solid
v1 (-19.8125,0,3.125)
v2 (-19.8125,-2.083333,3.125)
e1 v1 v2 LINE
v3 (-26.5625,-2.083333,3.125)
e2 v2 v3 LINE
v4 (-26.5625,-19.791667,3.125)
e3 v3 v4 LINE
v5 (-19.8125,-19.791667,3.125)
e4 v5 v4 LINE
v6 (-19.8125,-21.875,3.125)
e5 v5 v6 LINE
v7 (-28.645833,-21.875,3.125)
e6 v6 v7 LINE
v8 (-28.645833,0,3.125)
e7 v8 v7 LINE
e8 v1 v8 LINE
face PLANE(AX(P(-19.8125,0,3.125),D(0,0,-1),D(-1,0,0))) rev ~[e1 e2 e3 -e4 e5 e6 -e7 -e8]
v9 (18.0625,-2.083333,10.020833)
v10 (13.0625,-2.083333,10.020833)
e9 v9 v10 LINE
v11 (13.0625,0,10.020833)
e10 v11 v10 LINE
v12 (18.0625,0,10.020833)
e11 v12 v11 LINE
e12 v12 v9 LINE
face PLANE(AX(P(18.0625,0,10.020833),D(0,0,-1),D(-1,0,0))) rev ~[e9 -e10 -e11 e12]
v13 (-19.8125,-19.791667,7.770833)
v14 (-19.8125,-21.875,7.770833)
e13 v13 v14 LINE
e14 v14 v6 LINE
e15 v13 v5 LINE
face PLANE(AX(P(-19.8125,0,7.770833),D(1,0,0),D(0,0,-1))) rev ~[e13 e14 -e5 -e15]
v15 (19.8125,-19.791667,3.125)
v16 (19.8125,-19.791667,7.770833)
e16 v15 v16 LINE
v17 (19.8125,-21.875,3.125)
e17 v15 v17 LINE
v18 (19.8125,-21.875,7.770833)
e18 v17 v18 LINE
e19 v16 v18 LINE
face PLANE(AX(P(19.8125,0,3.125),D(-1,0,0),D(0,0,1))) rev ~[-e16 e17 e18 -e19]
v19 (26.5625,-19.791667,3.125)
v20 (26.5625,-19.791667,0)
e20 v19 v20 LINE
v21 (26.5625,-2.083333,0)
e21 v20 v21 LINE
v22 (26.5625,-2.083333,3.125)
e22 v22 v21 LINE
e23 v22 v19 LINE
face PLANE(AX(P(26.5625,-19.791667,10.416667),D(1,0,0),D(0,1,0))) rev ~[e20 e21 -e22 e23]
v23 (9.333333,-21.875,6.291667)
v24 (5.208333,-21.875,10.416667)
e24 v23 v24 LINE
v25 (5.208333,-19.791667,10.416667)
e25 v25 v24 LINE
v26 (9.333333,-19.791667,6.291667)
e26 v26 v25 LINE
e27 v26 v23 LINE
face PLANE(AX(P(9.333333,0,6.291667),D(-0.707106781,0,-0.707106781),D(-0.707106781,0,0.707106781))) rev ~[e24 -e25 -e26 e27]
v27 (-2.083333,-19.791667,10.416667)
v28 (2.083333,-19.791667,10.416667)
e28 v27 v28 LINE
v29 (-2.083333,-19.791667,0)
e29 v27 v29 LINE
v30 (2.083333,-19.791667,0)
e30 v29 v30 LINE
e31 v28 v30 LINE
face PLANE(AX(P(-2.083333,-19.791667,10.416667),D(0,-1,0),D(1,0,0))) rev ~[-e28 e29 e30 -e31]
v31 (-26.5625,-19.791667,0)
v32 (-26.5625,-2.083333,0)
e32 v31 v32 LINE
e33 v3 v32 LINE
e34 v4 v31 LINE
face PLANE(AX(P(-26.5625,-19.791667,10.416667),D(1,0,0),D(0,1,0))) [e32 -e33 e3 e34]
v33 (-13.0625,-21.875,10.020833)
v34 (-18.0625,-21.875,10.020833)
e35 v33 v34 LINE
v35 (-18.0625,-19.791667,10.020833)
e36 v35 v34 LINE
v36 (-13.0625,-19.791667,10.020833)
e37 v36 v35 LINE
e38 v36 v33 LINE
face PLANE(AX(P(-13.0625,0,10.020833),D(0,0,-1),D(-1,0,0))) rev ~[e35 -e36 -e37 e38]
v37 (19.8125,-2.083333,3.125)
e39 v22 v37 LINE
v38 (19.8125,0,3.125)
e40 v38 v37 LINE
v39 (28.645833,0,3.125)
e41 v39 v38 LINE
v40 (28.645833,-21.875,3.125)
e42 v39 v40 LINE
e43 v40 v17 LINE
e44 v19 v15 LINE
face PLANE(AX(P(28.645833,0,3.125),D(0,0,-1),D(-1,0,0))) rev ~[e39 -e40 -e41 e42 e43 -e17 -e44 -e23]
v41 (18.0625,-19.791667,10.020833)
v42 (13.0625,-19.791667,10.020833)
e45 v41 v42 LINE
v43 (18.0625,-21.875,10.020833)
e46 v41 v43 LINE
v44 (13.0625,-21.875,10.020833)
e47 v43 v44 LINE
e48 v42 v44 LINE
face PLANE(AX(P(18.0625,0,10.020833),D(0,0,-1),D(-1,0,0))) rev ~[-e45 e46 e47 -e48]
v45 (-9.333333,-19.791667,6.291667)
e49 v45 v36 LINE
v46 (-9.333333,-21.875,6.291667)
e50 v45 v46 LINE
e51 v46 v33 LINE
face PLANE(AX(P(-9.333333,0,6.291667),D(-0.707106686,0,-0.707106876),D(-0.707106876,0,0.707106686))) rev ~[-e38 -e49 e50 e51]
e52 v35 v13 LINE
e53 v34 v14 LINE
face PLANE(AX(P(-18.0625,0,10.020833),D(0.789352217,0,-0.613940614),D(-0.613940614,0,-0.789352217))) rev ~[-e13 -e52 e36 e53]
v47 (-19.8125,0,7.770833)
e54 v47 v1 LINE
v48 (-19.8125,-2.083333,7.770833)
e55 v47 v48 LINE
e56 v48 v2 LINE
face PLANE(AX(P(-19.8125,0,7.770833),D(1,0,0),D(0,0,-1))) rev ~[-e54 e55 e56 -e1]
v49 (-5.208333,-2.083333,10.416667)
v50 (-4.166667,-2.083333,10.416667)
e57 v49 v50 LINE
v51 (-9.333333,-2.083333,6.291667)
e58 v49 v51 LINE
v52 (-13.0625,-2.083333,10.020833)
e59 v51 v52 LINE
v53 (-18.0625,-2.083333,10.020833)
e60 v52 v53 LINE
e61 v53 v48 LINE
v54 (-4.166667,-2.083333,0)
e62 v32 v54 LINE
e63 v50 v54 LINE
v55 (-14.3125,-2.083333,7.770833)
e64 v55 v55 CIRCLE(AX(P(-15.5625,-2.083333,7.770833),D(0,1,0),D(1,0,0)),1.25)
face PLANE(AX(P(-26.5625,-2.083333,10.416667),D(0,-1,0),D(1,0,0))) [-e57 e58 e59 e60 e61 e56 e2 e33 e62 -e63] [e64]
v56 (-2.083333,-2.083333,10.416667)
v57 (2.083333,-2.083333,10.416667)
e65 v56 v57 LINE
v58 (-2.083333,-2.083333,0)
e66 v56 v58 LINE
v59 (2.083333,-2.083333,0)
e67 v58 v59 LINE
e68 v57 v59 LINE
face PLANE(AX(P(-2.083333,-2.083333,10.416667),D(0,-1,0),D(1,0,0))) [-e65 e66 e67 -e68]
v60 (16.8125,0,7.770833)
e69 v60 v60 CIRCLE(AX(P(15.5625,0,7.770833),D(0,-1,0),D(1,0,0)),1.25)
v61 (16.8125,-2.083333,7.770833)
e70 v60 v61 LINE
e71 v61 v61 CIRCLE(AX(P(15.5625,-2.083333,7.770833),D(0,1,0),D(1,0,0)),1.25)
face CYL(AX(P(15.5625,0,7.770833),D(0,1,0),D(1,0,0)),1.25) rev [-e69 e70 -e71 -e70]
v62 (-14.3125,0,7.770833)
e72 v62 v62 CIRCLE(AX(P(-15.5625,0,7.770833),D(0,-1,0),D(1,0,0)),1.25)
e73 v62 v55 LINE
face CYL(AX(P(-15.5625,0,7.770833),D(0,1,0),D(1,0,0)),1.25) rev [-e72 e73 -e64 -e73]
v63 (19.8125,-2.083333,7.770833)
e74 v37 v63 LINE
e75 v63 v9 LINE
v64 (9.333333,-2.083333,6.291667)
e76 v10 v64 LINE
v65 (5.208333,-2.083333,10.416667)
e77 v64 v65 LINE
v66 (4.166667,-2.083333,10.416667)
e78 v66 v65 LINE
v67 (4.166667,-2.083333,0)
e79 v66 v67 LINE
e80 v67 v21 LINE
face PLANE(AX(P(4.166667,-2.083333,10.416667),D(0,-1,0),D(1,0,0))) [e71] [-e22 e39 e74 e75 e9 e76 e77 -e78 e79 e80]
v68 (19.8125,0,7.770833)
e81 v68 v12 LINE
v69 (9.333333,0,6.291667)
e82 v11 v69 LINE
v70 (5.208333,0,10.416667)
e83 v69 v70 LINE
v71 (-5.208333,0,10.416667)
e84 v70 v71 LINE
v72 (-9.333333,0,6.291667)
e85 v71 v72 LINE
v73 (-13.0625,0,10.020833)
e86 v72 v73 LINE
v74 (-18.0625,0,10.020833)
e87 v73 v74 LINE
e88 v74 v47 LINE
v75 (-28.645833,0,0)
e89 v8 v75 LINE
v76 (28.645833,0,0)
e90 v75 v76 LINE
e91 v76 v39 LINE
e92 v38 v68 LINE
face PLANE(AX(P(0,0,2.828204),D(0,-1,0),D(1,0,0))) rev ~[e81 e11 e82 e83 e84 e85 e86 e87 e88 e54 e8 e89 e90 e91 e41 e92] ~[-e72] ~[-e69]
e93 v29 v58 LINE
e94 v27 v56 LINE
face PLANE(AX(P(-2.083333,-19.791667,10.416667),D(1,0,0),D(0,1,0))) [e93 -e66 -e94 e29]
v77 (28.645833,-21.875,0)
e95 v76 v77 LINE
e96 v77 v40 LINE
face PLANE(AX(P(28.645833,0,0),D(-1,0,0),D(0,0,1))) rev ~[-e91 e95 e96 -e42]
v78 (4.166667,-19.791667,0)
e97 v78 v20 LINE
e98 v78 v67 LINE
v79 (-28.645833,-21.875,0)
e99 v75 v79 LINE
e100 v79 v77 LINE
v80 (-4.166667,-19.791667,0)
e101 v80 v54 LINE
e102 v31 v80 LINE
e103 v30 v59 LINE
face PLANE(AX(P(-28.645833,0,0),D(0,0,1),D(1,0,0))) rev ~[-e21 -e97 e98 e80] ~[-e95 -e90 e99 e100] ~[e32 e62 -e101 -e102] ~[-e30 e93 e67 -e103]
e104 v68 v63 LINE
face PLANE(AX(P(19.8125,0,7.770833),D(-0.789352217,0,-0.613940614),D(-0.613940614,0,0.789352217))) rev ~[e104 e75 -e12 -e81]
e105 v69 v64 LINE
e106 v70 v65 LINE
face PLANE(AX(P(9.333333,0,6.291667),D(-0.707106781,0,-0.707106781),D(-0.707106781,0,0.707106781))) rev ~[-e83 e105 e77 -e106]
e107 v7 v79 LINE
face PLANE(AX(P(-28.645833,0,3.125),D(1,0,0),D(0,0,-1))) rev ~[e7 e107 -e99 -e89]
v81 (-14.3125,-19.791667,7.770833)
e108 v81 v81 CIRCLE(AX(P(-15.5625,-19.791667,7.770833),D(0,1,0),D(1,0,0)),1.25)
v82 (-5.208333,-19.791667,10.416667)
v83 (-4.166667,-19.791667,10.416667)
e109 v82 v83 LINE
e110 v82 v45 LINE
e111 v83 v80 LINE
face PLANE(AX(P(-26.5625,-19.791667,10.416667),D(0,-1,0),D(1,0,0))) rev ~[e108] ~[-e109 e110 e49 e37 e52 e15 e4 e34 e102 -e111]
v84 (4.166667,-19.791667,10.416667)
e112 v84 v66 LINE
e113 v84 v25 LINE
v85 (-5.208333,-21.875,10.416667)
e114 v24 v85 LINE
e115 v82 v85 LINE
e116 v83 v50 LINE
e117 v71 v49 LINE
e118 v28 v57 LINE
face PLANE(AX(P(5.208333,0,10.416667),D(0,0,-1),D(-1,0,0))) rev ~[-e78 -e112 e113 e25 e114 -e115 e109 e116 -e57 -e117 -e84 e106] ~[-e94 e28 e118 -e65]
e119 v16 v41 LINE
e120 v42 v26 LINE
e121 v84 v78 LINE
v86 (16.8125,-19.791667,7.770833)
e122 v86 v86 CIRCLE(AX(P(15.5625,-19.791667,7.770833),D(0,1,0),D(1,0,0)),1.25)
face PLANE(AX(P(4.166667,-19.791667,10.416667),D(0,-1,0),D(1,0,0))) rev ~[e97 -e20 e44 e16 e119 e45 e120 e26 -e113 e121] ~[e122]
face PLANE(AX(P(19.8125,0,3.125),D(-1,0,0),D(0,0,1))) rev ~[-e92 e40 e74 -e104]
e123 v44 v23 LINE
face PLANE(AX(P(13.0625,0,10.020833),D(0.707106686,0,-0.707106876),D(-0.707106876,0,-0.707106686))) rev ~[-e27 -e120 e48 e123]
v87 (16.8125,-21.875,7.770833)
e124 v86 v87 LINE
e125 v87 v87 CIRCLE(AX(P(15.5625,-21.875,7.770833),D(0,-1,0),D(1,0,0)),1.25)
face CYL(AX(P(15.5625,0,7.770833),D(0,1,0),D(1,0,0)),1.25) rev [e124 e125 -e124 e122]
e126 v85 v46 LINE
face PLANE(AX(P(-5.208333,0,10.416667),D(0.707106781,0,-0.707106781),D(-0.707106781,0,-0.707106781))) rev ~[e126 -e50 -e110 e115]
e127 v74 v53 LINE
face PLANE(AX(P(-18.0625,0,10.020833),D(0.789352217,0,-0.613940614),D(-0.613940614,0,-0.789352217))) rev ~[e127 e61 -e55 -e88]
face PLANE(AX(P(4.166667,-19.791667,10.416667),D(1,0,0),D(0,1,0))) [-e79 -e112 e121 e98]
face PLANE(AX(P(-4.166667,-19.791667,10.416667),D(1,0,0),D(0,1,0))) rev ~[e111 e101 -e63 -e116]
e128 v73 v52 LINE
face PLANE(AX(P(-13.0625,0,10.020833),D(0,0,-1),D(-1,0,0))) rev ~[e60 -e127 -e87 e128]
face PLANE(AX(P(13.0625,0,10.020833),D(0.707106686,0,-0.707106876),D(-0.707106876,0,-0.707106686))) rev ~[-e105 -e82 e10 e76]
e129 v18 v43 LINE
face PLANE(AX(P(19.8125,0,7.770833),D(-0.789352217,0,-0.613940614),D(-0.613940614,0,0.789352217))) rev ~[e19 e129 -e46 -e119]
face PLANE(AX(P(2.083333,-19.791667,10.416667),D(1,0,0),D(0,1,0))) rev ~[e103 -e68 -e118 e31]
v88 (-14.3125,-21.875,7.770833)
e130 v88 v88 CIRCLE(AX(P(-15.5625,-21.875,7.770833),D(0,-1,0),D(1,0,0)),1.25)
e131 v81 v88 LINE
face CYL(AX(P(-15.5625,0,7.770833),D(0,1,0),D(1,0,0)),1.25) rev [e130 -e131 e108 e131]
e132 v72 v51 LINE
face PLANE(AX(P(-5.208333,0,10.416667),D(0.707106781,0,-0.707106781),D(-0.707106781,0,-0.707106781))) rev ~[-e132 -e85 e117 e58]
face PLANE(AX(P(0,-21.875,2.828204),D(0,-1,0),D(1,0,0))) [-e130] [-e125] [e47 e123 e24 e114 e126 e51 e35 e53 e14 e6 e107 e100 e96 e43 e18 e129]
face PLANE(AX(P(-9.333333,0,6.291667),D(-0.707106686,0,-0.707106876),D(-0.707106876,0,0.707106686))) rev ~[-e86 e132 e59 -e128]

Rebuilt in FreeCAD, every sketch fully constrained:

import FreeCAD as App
import Part
import Sketcher

V = App.Vector

doc = App.newDocument("Part")
body = doc.addObject("PartDesign::Body", "Body")

sketch1 = body.newObject("Sketcher::SketchObject", "Sketch")
sketch1.AttachmentSupport = (doc.getObject("XZ_Plane"), [""])
sketch1.MapMode = "FlatFace"
sketch1.addGeometry([
    Part.LineSegment(V(-28.6, 0, 0), V(28.6, 0, 0)),
    Part.LineSegment(V(28.6, 0, 0), V(28.6, 3.1, 0)),
    Part.LineSegment(V(28.6, 3.1, 0), V(19.8, 3.1, 0)),
    Part.LineSegment(V(19.8, 3.1, 0), V(19.8, 7.8, 0)),
    Part.LineSegment(V(19.8, 7.8, 0), V(18.1, 10, 0)),
    Part.LineSegment(V(18.1, 10, 0), V(13.1, 10, 0)),
    Part.LineSegment(V(13.1, 10, 0), V(9.3, 6.3, 0)),
    Part.LineSegment(V(9.3, 6.3, 0), V(5.2, 10.4, 0)),
    Part.LineSegment(V(5.2, 10.4, 0), V(-5.2, 10.4, 0)),
    Part.LineSegment(V(-5.2, 10.4, 0), V(-9.3, 6.3, 0)),
    Part.LineSegment(V(-9.3, 6.3, 0), V(-13.1, 10, 0)),
    Part.LineSegment(V(-13.1, 10, 0), V(-18.1, 10, 0)),
    Part.LineSegment(V(-18.1, 10, 0), V(-19.8, 7.8, 0)),
    Part.LineSegment(V(-19.8, 7.8, 0), V(-19.8, 3.1, 0)),
    Part.LineSegment(V(-19.8, 3.1, 0), V(-28.6, 3.1, 0)),
    Part.LineSegment(V(-28.6, 3.1, 0), V(-28.6, 0, 0)),
    Part.Circle(V(-15.6, 7.8, 0), V(0, 0, 1), 1.2),
    Part.Circle(V(15.6, 7.8, 0), V(0, 0, 1), 1.2),
], False)
sketch1.addConstraint([
    Sketcher.Constraint("Coincident", 0, 2, 1, 1),
    Sketcher.Constraint("Coincident", 1, 2, 2, 1),
    Sketcher.Constraint("Coincident", 2, 2, 3, 1),
    Sketcher.Constraint("Coincident", 3, 2, 4, 1),
    Sketcher.Constraint("Coincident", 4, 2, 5, 1),
    Sketcher.Constraint("Coincident", 5, 2, 6, 1),
    Sketcher.Constraint("Coincident", 6, 2, 7, 1),
    Sketcher.Constraint("Coincident", 7, 2, 8, 1),
    Sketcher.Constraint("Coincident", 8, 2, 9, 1),
    Sketcher.Constraint("Coincident", 9, 2, 10, 1),
    Sketcher.Constraint("Coincident", 10, 2, 11, 1),
    Sketcher.Constraint("Coincident", 11, 2, 12, 1),
    Sketcher.Constraint("Coincident", 12, 2, 13, 1),
    Sketcher.Constraint("Coincident", 13, 2, 14, 1),
    Sketcher.Constraint("Coincident", 14, 2, 15, 1),
    Sketcher.Constraint("Coincident", 15, 2, 0, 1),
    Sketcher.Constraint("Horizontal", 0),
    Sketcher.Constraint("Vertical", 1),
    Sketcher.Constraint("Horizontal", 2),
    Sketcher.Constraint("Vertical", 3),
    Sketcher.Constraint("Horizontal", 5),
    Sketcher.Constraint("Horizontal", 8),
    Sketcher.Constraint("Horizontal", 11),
    Sketcher.Constraint("Vertical", 13),
    Sketcher.Constraint("Horizontal", 14),
    Sketcher.Constraint("Vertical", 15),
    Sketcher.Constraint("Equal", 16, 17),
    Sketcher.Constraint("Symmetric", 0, 2, 15, 2, -1, 1),
    Sketcher.Constraint("Symmetric", 16, 3, 17, 3, -2),
    Sketcher.Constraint("Symmetric", 6, 2, 9, 2, -2),
    Sketcher.Constraint("Symmetric", 5, 2, 10, 2, -2),
    Sketcher.Constraint("Symmetric", 3, 2, 12, 2, -2),
    Sketcher.Constraint("Perpendicular", 6, 7),
    Sketcher.Constraint("Perpendicular", 7, 9),
    Sketcher.Constraint("Perpendicular", 9, 10),
    Sketcher.Constraint("Horizontal", 17, 3, 3, 2),
    Sketcher.Constraint("Horizontal", 2, 2, 13, 2),
    Sketcher.Constraint("Equal", 5, 11),
    Sketcher.Constraint("Diameter", 16, 2.5),
    Sketcher.Constraint("DistanceX", 5, 2, 5, 1, 5.0),
    Sketcher.Constraint("DistanceX", 17, 3, 4, 2, 2.5),
    Sketcher.Constraint("DistanceY", 1, 1, 1, 2, 3.125),
    Sketcher.Constraint("DistanceX", 17, 3, 2, 2, 4.25),
    Sketcher.Constraint("DistanceY", 3, 2, 4, 2, 2.25),
    Sketcher.Constraint("DistanceX", 16, 3, 17, 3, 31.125),
    Sketcher.Constraint("DistanceX", 7, 2, 6, 2, 4.125),
    Sketcher.Constraint("DistanceX", 0, 1, 0, 2, 57.291666),
    Sketcher.Constraint("DistanceX", 8, 2, 8, 1, 10.416666),
    Sketcher.Constraint("DistanceY", 3, 1, 3, 2, 4.645833),
])
pad1 = body.newObject("PartDesign::Pad", "Pad")
pad1.Profile = sketch1
pad1.Length = 21.875

sketch2 = body.newObject("Sketcher::SketchObject", "Sketch001")
sketch2.AttachmentSupport = (doc.getObject("XY_Plane"), [""])
sketch2.MapMode = "FlatFace"
sketch2.AttachmentOffset = App.Placement(V(0, 0, 10.416667), App.Rotation())
sketch2.addGeometry([
    Part.LineSegment(V(-26.6, -2.1, 0), V(-26.6, -19.8, 0)),
    Part.LineSegment(V(-26.6, -19.8, 0), V(-4.2, -19.8, 0)),
    Part.LineSegment(V(-4.2, -19.8, 0), V(-4.2, -2.1, 0)),
    Part.LineSegment(V(-4.2, -2.1, 0), V(-26.6, -2.1, 0)),
    Part.LineSegment(V(4.2, -2.1, 0), V(4.2, -19.8, 0)),
    Part.LineSegment(V(4.2, -19.8, 0), V(26.6, -19.8, 0)),
    Part.LineSegment(V(26.6, -19.8, 0), V(26.6, -2.1, 0)),
    Part.LineSegment(V(26.6, -2.1, 0), V(4.2, -2.1, 0)),
    Part.LineSegment(V(-2.1, -2.1, 0), V(-2.1, -19.8, 0)),
    Part.LineSegment(V(-2.1, -19.8, 0), V(2.1, -19.8, 0)),
    Part.LineSegment(V(2.1, -19.8, 0), V(2.1, -2.1, 0)),
    Part.LineSegment(V(2.1, -2.1, 0), V(-2.1, -2.1, 0)),
], False)
sketch2.addConstraint([
    Sketcher.Constraint("Coincident", 0, 2, 1, 1),
    Sketcher.Constraint("Coincident", 1, 2, 2, 1),
    Sketcher.Constraint("Coincident", 2, 2, 3, 1),
    Sketcher.Constraint("Coincident", 3, 2, 0, 1),
    Sketcher.Constraint("Coincident", 4, 2, 5, 1),
    Sketcher.Constraint("Coincident", 5, 2, 6, 1),
    Sketcher.Constraint("Coincident", 6, 2, 7, 1),
    Sketcher.Constraint("Coincident", 7, 2, 4, 1),
    Sketcher.Constraint("Coincident", 8, 2, 9, 1),
    Sketcher.Constraint("Coincident", 9, 2, 10, 1),
    Sketcher.Constraint("Coincident", 10, 2, 11, 1),
    Sketcher.Constraint("Coincident", 11, 2, 8, 1),
    Sketcher.Constraint("Vertical", 0),
    Sketcher.Constraint("Horizontal", 1),
    Sketcher.Constraint("Vertical", 2),
    Sketcher.Constraint("Horizontal", 3),
    Sketcher.Constraint("Vertical", 4),
    Sketcher.Constraint("Horizontal", 5),
    Sketcher.Constraint("Vertical", 6),
    Sketcher.Constraint("Horizontal", 7),
    Sketcher.Constraint("Vertical", 8),
    Sketcher.Constraint("Horizontal", 9),
    Sketcher.Constraint("Vertical", 10),
    Sketcher.Constraint("Horizontal", 11),
    Sketcher.Constraint("Symmetric", 1, 2, 4, 2, -2),
    Sketcher.Constraint("Symmetric", 3, 2, 6, 2, -2),
    Sketcher.Constraint("Horizontal", 5, 2, 8, 2),
    Sketcher.Constraint("Horizontal", 7, 2, 10, 2),
    Sketcher.Constraint("DistanceX", 8, 2, 4, 2, 6.250001),
    Sketcher.Constraint("DistanceX", 1, 2, 9, 2, 6.250001),
    Sketcher.Constraint("DistanceX", 0, 2, 5, 2, 53.125001),
    Sketcher.Constraint("DistanceX", 1, 1, 1, 2, 22.395833),
    Sketcher.Constraint("DistanceY", 0, 2, 0, 1, 17.708334),
    Sketcher.Constraint("DistanceY", 0, 2, -1, 1, 19.791667),
])
pocket1 = body.newObject("PartDesign::Pocket", "Pocket")
pocket1.Profile = sketch2
pocket1.Type = "ThroughAll"

doc.recompute()
